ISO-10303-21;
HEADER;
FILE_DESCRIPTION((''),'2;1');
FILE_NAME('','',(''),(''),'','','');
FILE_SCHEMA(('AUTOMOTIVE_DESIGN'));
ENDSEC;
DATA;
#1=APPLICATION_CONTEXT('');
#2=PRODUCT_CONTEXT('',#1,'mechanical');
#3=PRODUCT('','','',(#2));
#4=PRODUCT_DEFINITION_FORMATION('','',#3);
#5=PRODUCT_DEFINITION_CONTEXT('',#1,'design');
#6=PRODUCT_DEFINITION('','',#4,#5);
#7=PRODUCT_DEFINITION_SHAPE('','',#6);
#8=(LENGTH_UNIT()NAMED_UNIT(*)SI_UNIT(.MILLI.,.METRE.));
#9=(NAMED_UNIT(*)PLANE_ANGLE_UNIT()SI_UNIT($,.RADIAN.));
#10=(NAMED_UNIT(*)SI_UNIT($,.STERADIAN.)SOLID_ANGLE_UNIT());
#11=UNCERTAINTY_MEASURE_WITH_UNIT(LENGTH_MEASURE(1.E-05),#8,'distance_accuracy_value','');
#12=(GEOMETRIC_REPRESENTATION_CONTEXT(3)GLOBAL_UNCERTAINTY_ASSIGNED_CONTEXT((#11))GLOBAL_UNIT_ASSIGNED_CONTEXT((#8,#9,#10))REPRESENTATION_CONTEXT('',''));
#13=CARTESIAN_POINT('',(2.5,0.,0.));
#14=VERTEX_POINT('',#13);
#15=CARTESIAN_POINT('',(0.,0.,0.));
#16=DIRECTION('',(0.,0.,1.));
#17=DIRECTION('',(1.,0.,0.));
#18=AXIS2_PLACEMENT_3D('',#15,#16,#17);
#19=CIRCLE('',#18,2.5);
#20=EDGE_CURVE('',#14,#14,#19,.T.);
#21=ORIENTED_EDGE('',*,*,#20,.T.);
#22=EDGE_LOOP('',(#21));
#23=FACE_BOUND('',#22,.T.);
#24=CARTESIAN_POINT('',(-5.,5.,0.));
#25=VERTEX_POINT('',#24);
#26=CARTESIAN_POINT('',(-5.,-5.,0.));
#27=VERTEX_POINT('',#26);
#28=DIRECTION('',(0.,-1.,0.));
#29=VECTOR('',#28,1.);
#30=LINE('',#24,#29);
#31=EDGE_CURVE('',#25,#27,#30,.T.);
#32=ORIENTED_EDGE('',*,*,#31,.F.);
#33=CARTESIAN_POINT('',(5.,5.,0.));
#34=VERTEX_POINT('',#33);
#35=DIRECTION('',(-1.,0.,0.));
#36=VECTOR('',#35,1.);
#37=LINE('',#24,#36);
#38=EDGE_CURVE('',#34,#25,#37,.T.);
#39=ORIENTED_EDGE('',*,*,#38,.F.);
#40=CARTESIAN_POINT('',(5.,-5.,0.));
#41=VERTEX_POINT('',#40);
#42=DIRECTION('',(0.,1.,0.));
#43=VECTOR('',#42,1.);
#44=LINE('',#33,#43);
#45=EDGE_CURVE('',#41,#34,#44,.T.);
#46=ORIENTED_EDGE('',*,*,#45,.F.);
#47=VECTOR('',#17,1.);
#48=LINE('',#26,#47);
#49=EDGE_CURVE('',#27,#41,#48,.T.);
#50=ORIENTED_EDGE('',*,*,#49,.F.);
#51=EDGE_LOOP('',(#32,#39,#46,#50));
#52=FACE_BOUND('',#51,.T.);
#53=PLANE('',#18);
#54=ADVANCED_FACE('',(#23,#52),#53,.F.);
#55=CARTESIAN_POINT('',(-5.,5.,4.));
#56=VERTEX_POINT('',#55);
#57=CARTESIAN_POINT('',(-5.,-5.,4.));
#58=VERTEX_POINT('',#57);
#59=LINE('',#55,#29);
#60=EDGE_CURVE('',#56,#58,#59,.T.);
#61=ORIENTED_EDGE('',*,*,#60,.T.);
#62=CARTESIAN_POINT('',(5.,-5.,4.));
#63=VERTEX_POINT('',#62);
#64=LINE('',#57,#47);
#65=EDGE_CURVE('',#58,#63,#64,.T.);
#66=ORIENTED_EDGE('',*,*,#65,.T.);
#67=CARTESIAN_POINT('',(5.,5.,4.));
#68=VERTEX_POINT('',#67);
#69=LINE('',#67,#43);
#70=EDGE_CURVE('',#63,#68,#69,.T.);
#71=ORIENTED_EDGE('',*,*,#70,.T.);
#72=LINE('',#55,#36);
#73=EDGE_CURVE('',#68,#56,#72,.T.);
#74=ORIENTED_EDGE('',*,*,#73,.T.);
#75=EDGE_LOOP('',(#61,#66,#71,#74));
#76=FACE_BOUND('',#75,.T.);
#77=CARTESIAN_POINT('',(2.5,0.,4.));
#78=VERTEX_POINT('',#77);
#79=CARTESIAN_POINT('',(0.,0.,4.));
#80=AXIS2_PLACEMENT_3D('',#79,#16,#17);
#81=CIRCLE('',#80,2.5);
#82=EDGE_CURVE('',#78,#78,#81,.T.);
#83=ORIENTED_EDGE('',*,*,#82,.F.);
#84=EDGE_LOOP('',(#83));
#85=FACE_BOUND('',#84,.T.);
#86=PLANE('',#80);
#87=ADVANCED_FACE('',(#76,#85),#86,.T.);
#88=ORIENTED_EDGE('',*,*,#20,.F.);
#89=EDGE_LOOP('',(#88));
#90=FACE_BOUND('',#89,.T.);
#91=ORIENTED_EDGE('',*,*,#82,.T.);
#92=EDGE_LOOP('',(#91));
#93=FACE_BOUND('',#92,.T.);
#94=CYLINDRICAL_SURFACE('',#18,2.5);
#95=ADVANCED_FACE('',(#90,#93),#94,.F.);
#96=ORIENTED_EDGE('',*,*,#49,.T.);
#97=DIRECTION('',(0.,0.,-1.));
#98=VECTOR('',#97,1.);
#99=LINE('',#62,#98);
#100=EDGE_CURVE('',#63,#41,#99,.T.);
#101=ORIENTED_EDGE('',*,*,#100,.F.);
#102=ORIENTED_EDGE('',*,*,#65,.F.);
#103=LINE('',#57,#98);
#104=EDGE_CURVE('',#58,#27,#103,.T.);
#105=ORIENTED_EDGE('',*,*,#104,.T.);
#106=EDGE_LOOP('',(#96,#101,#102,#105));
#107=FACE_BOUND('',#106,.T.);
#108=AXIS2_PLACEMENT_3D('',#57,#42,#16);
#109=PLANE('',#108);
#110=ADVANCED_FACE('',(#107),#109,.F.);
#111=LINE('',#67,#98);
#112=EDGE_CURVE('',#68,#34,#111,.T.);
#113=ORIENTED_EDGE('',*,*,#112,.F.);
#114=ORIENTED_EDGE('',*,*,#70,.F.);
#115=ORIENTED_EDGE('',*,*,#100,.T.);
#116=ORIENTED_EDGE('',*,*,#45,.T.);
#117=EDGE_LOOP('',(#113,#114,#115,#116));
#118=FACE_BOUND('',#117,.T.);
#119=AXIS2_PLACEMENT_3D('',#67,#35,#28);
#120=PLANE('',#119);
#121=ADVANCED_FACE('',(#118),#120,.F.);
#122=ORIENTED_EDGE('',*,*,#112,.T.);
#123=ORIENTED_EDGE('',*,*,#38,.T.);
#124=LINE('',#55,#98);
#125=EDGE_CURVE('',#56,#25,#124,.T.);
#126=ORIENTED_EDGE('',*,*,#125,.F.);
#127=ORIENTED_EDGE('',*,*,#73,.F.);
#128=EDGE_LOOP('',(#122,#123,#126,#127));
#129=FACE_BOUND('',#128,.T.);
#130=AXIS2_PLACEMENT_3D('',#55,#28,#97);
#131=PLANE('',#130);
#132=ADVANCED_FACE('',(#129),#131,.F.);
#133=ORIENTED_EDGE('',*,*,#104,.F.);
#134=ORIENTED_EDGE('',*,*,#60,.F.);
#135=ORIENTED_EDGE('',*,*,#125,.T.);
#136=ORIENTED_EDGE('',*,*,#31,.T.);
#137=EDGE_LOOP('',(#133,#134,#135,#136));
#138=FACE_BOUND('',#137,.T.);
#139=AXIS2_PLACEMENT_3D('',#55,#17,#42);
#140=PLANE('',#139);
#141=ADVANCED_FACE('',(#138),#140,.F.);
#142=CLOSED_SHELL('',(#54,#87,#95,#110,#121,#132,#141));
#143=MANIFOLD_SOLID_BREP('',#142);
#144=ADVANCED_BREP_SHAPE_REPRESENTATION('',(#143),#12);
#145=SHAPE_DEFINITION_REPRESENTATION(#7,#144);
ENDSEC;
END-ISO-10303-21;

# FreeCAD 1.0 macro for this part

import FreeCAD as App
import Part
import Sketcher
Q = App.Units.Quantity

doc = App.newDocument("Part")
body = doc.addObject("PartDesign::Body", "Body")

# Sketch on XY plane
sketch1 = doc.addObject("Sketcher::SketchObject", "Sketch")
body.addObject(sketch1)
sketch1.AttachmentSupport = (doc.XY_Plane, [""])
sketch1.MapMode = "FlatFace"
sketch1.addGeometry(Part.LineSegment(App.Vector(-5, 5, 0), App.Vector(-5, -5, 0)), False)
sketch1.addGeometry(Part.LineSegment(App.Vector(-5, -5, 0), App.Vector(5, -5, 0)), False)
sketch1.addGeometry(Part.LineSegment(App.Vector(5, -5, 0), App.Vector(5, 5, 0)), False)
sketch1.addGeometry(Part.LineSegment(App.Vector(5, 5, 0), App.Vector(-5, 5, 0)), False)
sketch1.addConstraint(Sketcher.Constraint("Coincident", 0, 2, 1, 1))
sketch1.addConstraint(Sketcher.Constraint("Coincident", 1, 2, 2, 1))
sketch1.addConstraint(Sketcher.Constraint("Coincident", 2, 2, 3, 1))
sketch1.addConstraint(Sketcher.Constraint("Coincident", 3, 2, 0, 1))
sketch1.addConstraint(Sketcher.Constraint("Vertical", 0))
sketch1.addConstraint(Sketcher.Constraint("Horizontal", 1))
sketch1.addConstraint(Sketcher.Constraint("Vertical", 2))
sketch1.addConstraint(Sketcher.Constraint("Horizontal", 3))
sketch1.addConstraint(Sketcher.Constraint("Symmetric", 0, 2, 2, 2, -1, 1))
sketch1.addConstraint(Sketcher.Constraint("Equal", 3, 0))
sketch1.addConstraint(Sketcher.Constraint("DistanceX", 1, 1, 1, 2, Q("10 mm")))
pad1 = doc.addObject("PartDesign::Pad", "Pad")
body.addObject(pad1)
pad1.Profile = sketch1
pad1.Length = 4

# Sketch on XY plane
sketch2 = doc.addObject("Sketcher::SketchObject", "Sketch001")
body.addObject(sketch2)
sketch2.AttachmentSupport = (doc.XY_Plane, [""])
sketch2.MapMode = "FlatFace"
sketch2.AttachmentOffset = App.Placement(App.Vector(0, 0, 4), App.Rotation())
sketch2.addGeometry(Part.Circle(App.Vector(0, 0, 0), App.Vector(0, 0, 1), 2.5), False)
sketch2.addConstraint(Sketcher.Constraint("Coincident", 0, 3, -1, 1))
sketch2.addConstraint(Sketcher.Constraint("Diameter", 0, Q("5 mm")))
pocket1 = doc.addObject("PartDesign::Pocket", "Pocket")
body.addObject(pocket1)
pocket1.Profile = sketch2
pocket1.Type = "ThroughAll"

doc.recompute()
